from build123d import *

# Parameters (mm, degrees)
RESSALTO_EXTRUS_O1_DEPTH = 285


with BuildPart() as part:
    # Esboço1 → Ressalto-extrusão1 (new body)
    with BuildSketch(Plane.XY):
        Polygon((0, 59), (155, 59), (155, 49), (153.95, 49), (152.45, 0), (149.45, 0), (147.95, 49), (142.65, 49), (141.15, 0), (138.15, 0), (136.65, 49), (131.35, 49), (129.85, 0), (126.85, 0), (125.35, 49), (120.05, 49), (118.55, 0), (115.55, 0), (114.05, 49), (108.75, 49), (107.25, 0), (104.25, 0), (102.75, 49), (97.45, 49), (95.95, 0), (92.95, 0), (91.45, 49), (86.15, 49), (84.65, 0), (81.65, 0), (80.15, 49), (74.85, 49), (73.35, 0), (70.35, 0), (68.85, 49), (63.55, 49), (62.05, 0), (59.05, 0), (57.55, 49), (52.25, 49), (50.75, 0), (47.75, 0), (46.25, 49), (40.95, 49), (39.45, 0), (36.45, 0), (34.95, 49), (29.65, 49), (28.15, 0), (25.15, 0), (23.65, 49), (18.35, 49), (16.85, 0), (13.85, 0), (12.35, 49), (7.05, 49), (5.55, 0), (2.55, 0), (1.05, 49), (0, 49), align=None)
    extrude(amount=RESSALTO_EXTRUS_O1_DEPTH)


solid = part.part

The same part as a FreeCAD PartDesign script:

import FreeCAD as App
import Part
import Sketcher

V = App.Vector
Q = App.Units.Quantity

doc = App.newDocument("Part")
params = doc.addObject("Spreadsheet::Sheet", "Params")
for row, (alias, value) in enumerate([
    ("sketch1_width", "155 mm"),
    ("sketch1_width2", "3 mm"),
    ("sketch1_height", "10 mm"),
    ("sketch1_width3", "5.3 mm"),
    ("pad1_length", "285 mm"),
], start=1):
    params.set(f"A{row}", alias)
    params.set(f"B{row}", "=" + value)
    params.setAlias(f"B{row}", alias)

body = doc.addObject("PartDesign::Body", "Body")

sketch1 = body.newObject("Sketcher::SketchObject", "Sketch")
sketch1.AttachmentSupport = (doc.getObject("XY_Plane"), [""])
sketch1.MapMode = "FlatFace"
sketch1.addGeometry([
    Part.LineSegment(V(155, 59, 0), V(0, 59, 0)),
    Part.LineSegment(V(0, 59, 0), V(0, 49, 0)),
    Part.LineSegment(V(0, 49, 0), V(1.05, 49, 0)),
    Part.LineSegment(V(1.05, 49, 0), V(2.55, 0, 0)),
    Part.LineSegment(V(2.55, 0, 0), V(5.55, 0, 0)),
    Part.LineSegment(V(5.55, 0, 0), V(7.05, 49, 0)),
    Part.LineSegment(V(7.05, 49, 0), V(12.35, 49, 0)),
    Part.LineSegment(V(12.35, 49, 0), V(13.85, 0, 0)),
    Part.LineSegment(V(13.85, 0, 0), V(16.85, 0, 0)),
    Part.LineSegment(V(16.85, 0, 0), V(18.35, 49, 0)),
    Part.LineSegment(V(18.35, 49, 0), V(23.65, 49, 0)),
    Part.LineSegment(V(23.65, 49, 0), V(25.15, 0, 0)),
    Part.LineSegment(V(25.15, 0, 0), V(28.15, 0, 0)),
    Part.LineSegment(V(28.15, 0, 0), V(29.65, 49, 0)),
    Part.LineSegment(V(29.65, 49, 0), V(34.95, 49, 0)),
    Part.LineSegment(V(34.95, 49, 0), V(36.45, 0, 0)),
    Part.LineSegment(V(36.45, 0, 0), V(39.45, 0, 0)),
    Part.LineSegment(V(39.45, 0, 0), V(40.95, 49, 0)),
    Part.LineSegment(V(40.95, 49, 0), V(46.25, 49, 0)),
    Part.LineSegment(V(46.25, 49, 0), V(47.75, 0, 0)),
    Part.LineSegment(V(47.75, 0, 0), V(50.75, 0, 0)),
    Part.LineSegment(V(50.75, 0, 0), V(52.25, 49, 0)),
    Part.LineSegment(V(52.25, 49, 0), V(57.55, 49, 0)),
    Part.LineSegment(V(57.55, 49, 0), V(59.05, 0, 0)),
    Part.LineSegment(V(59.05, 0, 0), V(62.05, 0, 0)),
    Part.LineSegment(V(62.05, 0, 0), V(63.55, 49, 0)),
    Part.LineSegment(V(63.55, 49, 0), V(68.85, 49, 0)),
    Part.LineSegment(V(68.85, 49, 0), V(70.35, 0, 0)),
    Part.LineSegment(V(70.35, 0, 0), V(73.35, 0, 0)),
    Part.LineSegment(V(73.35, 0, 0), V(74.85, 49, 0)),
    Part.LineSegment(V(74.85, 49, 0), V(80.15, 49, 0)),
    Part.LineSegment(V(80.15, 49, 0), V(81.65, 0, 0)),
    Part.LineSegment(V(81.65, 0, 0), V(84.65, 0, 0)),
    Part.LineSegment(V(84.65, 0, 0), V(86.15, 49, 0)),
    Part.LineSegment(V(86.15, 49, 0), V(91.45, 49, 0)),
    Part.LineSegment(V(91.45, 49, 0), V(92.95, 0, 0)),
    Part.LineSegment(V(92.95, 0, 0), V(95.95, 0, 0)),
    Part.LineSegment(V(95.95, 0, 0), V(97.45, 49, 0)),
    Part.LineSegment(V(97.45, 49, 0), V(102.75, 49, 0)),
    Part.LineSegment(V(102.75, 49, 0), V(104.25, 0, 0)),
    Part.LineSegment(V(104.25, 0, 0), V(107.25, 0, 0)),
    Part.LineSegment(V(107.25, 0, 0), V(108.75, 49, 0)),
    Part.LineSegment(V(108.75, 49, 0), V(114.05, 49, 0)),
    Part.LineSegment(V(114.05, 49, 0), V(115.55, 0, 0)),
    Part.LineSegment(V(115.55, 0, 0), V(118.55, 0, 0)),
    Part.LineSegment(V(118.55, 0, 0), V(120.05, 49, 0)),
    Part.LineSegment(V(120.05, 49, 0), V(125.35, 49, 0)),
    Part.LineSegment(V(125.35, 49, 0), V(126.85, 0, 0)),
    Part.LineSegment(V(126.85, 0, 0), V(129.85, 0, 0)),
    Part.LineSegment(V(129.85, 0, 0), V(131.35, 49, 0)),
    Part.LineSegment(V(131.35, 49, 0), V(136.65, 49, 0)),
    Part.LineSegment(V(136.65, 49, 0), V(138.15, 0, 0)),
    Part.LineSegment(V(138.15, 0, 0), V(141.15, 0, 0)),
    Part.LineSegment(V(141.15, 0, 0), V(142.65, 49, 0)),
    Part.LineSegment(V(142.65, 49, 0), V(147.95, 49, 0)),
    Part.LineSegment(V(147.95, 49, 0), V(149.45, 0, 0)),
    Part.LineSegment(V(149.45, 0, 0), V(152.45, 0, 0)),
    Part.LineSegment(V(152.45, 0, 0), V(153.95, 49, 0)),
    Part.LineSegment(V(153.95, 49, 0), V(155, 49, 0)),
    Part.LineSegment(V(155, 49, 0), V(155, 59, 0)),
], False)
sketch1.addConstraint([
    Sketcher.Constraint("Coincident", 0, 2, 1, 1),
    Sketcher.Constraint("Coincident", 1, 2, 2, 1),
    Sketcher.Constraint("Coincident", 2, 2, 3, 1),
    Sketcher.Constraint("Coincident", 3, 2, 4, 1),
    Sketcher.Constraint("Coincident", 4, 2, 5, 1),
    Sketcher.Constraint("Coincident", 5, 2, 6, 1),
    Sketcher.Constraint("Coincident", 6, 2, 7, 1),
    Sketcher.Constraint("Coincident", 7, 2, 8, 1),
    Sketcher.Constraint("Coincident", 8, 2, 9, 1),
    Sketcher.Constraint("Coincident", 9, 2, 10, 1),
    Sketcher.Constraint("Coincident", 10, 2, 11, 1),
    Sketcher.Constraint("Coincident", 11, 2, 12, 1),
    Sketcher.Constraint("Coincident", 12, 2, 13, 1),
    Sketcher.Constraint("Coincident", 13, 2, 14, 1),
    Sketcher.Constraint("Coincident", 14, 2, 15, 1),
    Sketcher.Constraint("Coincident", 15, 2, 16, 1),
    Sketcher.Constraint("Coincident", 16, 2, 17, 1),
    Sketcher.Constraint("Coincident", 17, 2, 18, 1),
    Sketcher.Constraint("Coincident", 18, 2, 19, 1),
    Sketcher.Constraint("Coincident", 19, 2, 20, 1),
    Sketcher.Constraint("Coincident", 20, 2, 21, 1),
    Sketcher.Constraint("Coincident", 21, 2, 22, 1),
    Sketcher.Constraint("Coincident", 22, 2, 23, 1),
    Sketcher.Constraint("Coincident", 23, 2, 24, 1),
    Sketcher.Constraint("Coincident", 24, 2, 25, 1),
    Sketcher.Constraint("Coincident", 25, 2, 26, 1),
    Sketcher.Constraint("Coincident", 26, 2, 27, 1),
    Sketcher.Constraint("Coincident", 27, 2, 28, 1),
    Sketcher.Constraint("Coincident", 28, 2, 29, 1),
    Sketcher.Constraint("Coincident", 29, 2, 30, 1),
    Sketcher.Constraint("Coincident", 30, 2, 31, 1),
    Sketcher.Constraint("Coincident", 31, 2, 32, 1),
    Sketcher.Constraint("Coincident", 32, 2, 33, 1),
    Sketcher.Constraint("Coincident", 33, 2, 34, 1),
    Sketcher.Constraint("Coincident", 34, 2, 35, 1),
    Sketcher.Constraint("Coincident", 35, 2, 36, 1),
    Sketcher.Constraint("Coincident", 36, 2, 37, 1),
    Sketcher.Constraint("Coincident", 37, 2, 38, 1),
    Sketcher.Constraint("Coincident", 38, 2, 39, 1),
    Sketcher.Constraint("Coincident", 39, 2, 40, 1),
    Sketcher.Constraint("Coincident", 40, 2, 41, 1),
    Sketcher.Constraint("Coincident", 41, 2, 42, 1),
    Sketcher.Constraint("Coincident", 42, 2, 43, 1),
    Sketcher.Constraint("Coincident", 43, 2, 44, 1),
    Sketcher.Constraint("Coincident", 44, 2, 45, 1),
    Sketcher.Constraint("Coincident", 45, 2, 46, 1),
    Sketcher.Constraint("Coincident", 46, 2, 47, 1),
    Sketcher.Constraint("Coincident", 47, 2, 48, 1),
    Sketcher.Constraint("Coincident", 48, 2, 49, 1),
    Sketcher.Constraint("Coincident", 49, 2, 50, 1),
    Sketcher.Constraint("Coincident", 50, 2, 51, 1),
    Sketcher.Constraint("Coincident", 51, 2, 52, 1),
    Sketcher.Constraint("Coincident", 52, 2, 53, 1),
    Sketcher.Constraint("Coincident", 53, 2, 54, 1),
    Sketcher.Constraint("Coincident", 54, 2, 55, 1),
    Sketcher.Constraint("Coincident", 55, 2, 56, 1),
    Sketcher.Constraint("Coincident", 56, 2, 57, 1),
    Sketcher.Constraint("Coincident", 57, 2, 58, 1),
    Sketcher.Constraint("Coincident", 58, 2, 59, 1),
    Sketcher.Constraint("Coincident", 59, 2, 0, 1),
    Sketcher.Constraint("Horizontal", 0),
    Sketcher.Constraint("Vertical", 1),
    Sketcher.Constraint("Horizontal", 2),
    Sketcher.Constraint("Horizontal", 4),
    Sketcher.Constraint("Horizontal", 6),
    Sketcher.Constraint("Horizontal", 8),
    Sketcher.Constraint("Horizontal", 10),
    Sketcher.Constraint("Horizontal", 12),
    Sketcher.Constraint("Horizontal", 14),
    Sketcher.Constraint("Horizontal", 16),
    Sketcher.Constraint("Horizontal", 18),
    Sketcher.Constraint("Horizontal", 20),
    Sketcher.Constraint("Horizontal", 22),
    Sketcher.Constraint("Horizontal", 24),
    Sketcher.Constraint("Horizontal", 26),
    Sketcher.Constraint("Horizontal", 28),
    Sketcher.Constraint("Horizontal", 30),
    Sketcher.Constraint("Horizontal", 32),
    Sketcher.Constraint("Horizontal", 34),
    Sketcher.Constraint("Horizontal", 36),
    Sketcher.Constraint("Horizontal", 38),
    Sketcher.Constraint("Horizontal", 40),
    Sketcher.Constraint("Horizontal", 42),
    Sketcher.Constraint("Horizontal", 44),
    Sketcher.Constraint("Horizontal", 46),
    Sketcher.Constraint("Horizontal", 48),
    Sketcher.Constraint("Horizontal", 50),
    Sketcher.Constraint("Horizontal", 52),
    Sketcher.Constraint("Horizontal", 54),
    Sketcher.Constraint("Horizontal", 56),
    Sketcher.Constraint("Horizontal", 58),
    Sketcher.Constraint("Vertical", 59),
    Sketcher.Constraint("PointOnObject", 0, 2, -2),
    Sketcher.Constraint("PointOnObject", 3, 2, -1),
    Sketcher.Constraint("PointOnObject", 7, 2, -1),
    Sketcher.Constraint("PointOnObject", 11, 2, -1),
    Sketcher.Constraint("PointOnObject", 15, 2, -1),
    Sketcher.Constraint("PointOnObject", 19, 2, -1),
    Sketcher.Constraint("PointOnObject", 23, 2, -1),
    Sketcher.Constraint("PointOnObject", 27, 2, -1),
    Sketcher.Constraint("PointOnObject", 31, 2, -1),
    Sketcher.Constraint("PointOnObject", 35, 2, -1),
    Sketcher.Constraint("PointOnObject", 39, 2, -1),
    Sketcher.Constraint("PointOnObject", 43, 2, -1),
    Sketcher.Constraint("PointOnObject", 47, 2, -1),
    Sketcher.Constraint("PointOnObject", 51, 2, -1),
    Sketcher.Constraint("PointOnObject", 55, 2, -1),
    Sketcher.Constraint("Parallel", 3, 7),
    Sketcher.Constraint("Parallel", 5, 9),
    Sketcher.Constraint("Parallel", 7, 11),
    Sketcher.Constraint("Parallel", 9, 13),
    Sketcher.Constraint("Parallel", 11, 15),
    Sketcher.Constraint("Parallel", 13, 17),
    Sketcher.Constraint("Parallel", 15, 19),
    Sketcher.Constraint("Parallel", 17, 21),
    Sketcher.Constraint("Parallel", 19, 23),
    Sketcher.Constraint("Parallel", 21, 25),
    Sketcher.Constraint("Parallel", 23, 27),
    Sketcher.Constraint("Parallel", 25, 29),
    Sketcher.Constraint("Parallel", 27, 31),
    Sketcher.Constraint("Parallel", 29, 33),
    Sketcher.Constraint("Parallel", 31, 35),
    Sketcher.Constraint("Parallel", 33, 37),
    Sketcher.Constraint("Parallel", 35, 39),
    Sketcher.Constraint("Parallel", 37, 41),
    Sketcher.Constraint("Parallel", 39, 43),
    Sketcher.Constraint("Parallel", 41, 45),
    Sketcher.Constraint("Parallel", 43, 47),
    Sketcher.Constraint("Parallel", 45, 49),
    Sketcher.Constraint("Parallel", 47, 51),
    Sketcher.Constraint("Parallel", 49, 53),
    Sketcher.Constraint("Parallel", 51, 55),
    Sketcher.Constraint("Parallel", 53, 57),
    Sketcher.Constraint("Horizontal", 2, 2, 5, 2),
    Sketcher.Constraint("Horizontal", 6, 2, 9, 2),
    Sketcher.Constraint("Horizontal", 10, 2, 13, 2),
    Sketcher.Constraint("Horizontal", 14, 2, 17, 2),
    Sketcher.Constraint("Horizontal", 18, 2, 21, 2),
    Sketcher.Constraint("Horizontal", 22, 2, 25, 2),
    Sketcher.Constraint("Horizontal", 26, 2, 29, 2),
    Sketcher.Constraint("Horizontal", 30, 2, 33, 2),
    Sketcher.Constraint("Horizontal", 34, 2, 37, 2),
    Sketcher.Constraint("Horizontal", 38, 2, 41, 2),
    Sketcher.Constraint("Horizontal", 42, 2, 45, 2),
    Sketcher.Constraint("Horizontal", 46, 2, 49, 2),
    Sketcher.Constraint("Horizontal", 50, 2, 53, 2),
    Sketcher.Constraint("Horizontal", 54, 2, 57, 2),
    Sketcher.Constraint("Equal", 4, 8),
    Sketcher.Constraint("Equal", 6, 10),
    Sketcher.Constraint("Equal", 8, 12),
    Sketcher.Constraint("Equal", 10, 14),
    Sketcher.Constraint("Equal", 12, 16),
    Sketcher.Constraint("Equal", 14, 18),
    Sketcher.Constraint("Equal", 16, 20),
    Sketcher.Constraint("Equal", 18, 22),
    Sketcher.Constraint("Equal", 20, 24),
    Sketcher.Constraint("Equal", 22, 26),
    Sketcher.Constraint("Equal", 24, 28),
    Sketcher.Constraint("Equal", 26, 30),
    Sketcher.Constraint("Equal", 28, 32),
    Sketcher.Constraint("Equal", 30, 34),
    Sketcher.Constraint("Equal", 32, 36),
    Sketcher.Constraint("Equal", 34, 38),
    Sketcher.Constraint("Equal", 36, 40),
    Sketcher.Constraint("Equal", 38, 42),
    Sketcher.Constraint("Equal", 40, 44),
    Sketcher.Constraint("Equal", 42, 46),
    Sketcher.Constraint("Equal", 44, 48),
    Sketcher.Constraint("Equal", 46, 50),
    Sketcher.Constraint("Equal", 48, 52),
    Sketcher.Constraint("Equal", 50, 54),
    Sketcher.Constraint("Equal", 52, 56),
    Sketcher.Constraint("Equal", 2, 58),
    Sketcher.Constraint("Equal", 3, 5),
    Sketcher.Constraint("DistanceX", 0, 2, 0, 1, Q("155 mm")),
    Sketcher.Constraint("DistanceX", 4, 1, 4, 2, Q("3 mm")),
    Sketcher.Constraint("DistanceY", 1, 2, 1, 1, Q("10 mm")),
    Sketcher.Constraint("DistanceX", 6, 1, 6, 2, Q("5.3 mm")),
    Sketcher.Constraint("DistanceY", -1, 1, 0, 2, Q("59 mm")),
    Sketcher.Constraint("DistanceX", 2, 2, 5, 2, Q("6 mm")),
])
sketch1.setExpression("Constraints[174]", "Params.sketch1_width")
sketch1.setExpression("Constraints[175]", "Params.sketch1_width2")
sketch1.setExpression("Constraints[176]", "Params.sketch1_height")
sketch1.setExpression("Constraints[177]", "Params.sketch1_width3")
pad1 = body.newObject("PartDesign::Pad", "Pad")
pad1.Profile = sketch1
pad1.setExpression("Length", "Params.pad1_length")

doc.recompute()
